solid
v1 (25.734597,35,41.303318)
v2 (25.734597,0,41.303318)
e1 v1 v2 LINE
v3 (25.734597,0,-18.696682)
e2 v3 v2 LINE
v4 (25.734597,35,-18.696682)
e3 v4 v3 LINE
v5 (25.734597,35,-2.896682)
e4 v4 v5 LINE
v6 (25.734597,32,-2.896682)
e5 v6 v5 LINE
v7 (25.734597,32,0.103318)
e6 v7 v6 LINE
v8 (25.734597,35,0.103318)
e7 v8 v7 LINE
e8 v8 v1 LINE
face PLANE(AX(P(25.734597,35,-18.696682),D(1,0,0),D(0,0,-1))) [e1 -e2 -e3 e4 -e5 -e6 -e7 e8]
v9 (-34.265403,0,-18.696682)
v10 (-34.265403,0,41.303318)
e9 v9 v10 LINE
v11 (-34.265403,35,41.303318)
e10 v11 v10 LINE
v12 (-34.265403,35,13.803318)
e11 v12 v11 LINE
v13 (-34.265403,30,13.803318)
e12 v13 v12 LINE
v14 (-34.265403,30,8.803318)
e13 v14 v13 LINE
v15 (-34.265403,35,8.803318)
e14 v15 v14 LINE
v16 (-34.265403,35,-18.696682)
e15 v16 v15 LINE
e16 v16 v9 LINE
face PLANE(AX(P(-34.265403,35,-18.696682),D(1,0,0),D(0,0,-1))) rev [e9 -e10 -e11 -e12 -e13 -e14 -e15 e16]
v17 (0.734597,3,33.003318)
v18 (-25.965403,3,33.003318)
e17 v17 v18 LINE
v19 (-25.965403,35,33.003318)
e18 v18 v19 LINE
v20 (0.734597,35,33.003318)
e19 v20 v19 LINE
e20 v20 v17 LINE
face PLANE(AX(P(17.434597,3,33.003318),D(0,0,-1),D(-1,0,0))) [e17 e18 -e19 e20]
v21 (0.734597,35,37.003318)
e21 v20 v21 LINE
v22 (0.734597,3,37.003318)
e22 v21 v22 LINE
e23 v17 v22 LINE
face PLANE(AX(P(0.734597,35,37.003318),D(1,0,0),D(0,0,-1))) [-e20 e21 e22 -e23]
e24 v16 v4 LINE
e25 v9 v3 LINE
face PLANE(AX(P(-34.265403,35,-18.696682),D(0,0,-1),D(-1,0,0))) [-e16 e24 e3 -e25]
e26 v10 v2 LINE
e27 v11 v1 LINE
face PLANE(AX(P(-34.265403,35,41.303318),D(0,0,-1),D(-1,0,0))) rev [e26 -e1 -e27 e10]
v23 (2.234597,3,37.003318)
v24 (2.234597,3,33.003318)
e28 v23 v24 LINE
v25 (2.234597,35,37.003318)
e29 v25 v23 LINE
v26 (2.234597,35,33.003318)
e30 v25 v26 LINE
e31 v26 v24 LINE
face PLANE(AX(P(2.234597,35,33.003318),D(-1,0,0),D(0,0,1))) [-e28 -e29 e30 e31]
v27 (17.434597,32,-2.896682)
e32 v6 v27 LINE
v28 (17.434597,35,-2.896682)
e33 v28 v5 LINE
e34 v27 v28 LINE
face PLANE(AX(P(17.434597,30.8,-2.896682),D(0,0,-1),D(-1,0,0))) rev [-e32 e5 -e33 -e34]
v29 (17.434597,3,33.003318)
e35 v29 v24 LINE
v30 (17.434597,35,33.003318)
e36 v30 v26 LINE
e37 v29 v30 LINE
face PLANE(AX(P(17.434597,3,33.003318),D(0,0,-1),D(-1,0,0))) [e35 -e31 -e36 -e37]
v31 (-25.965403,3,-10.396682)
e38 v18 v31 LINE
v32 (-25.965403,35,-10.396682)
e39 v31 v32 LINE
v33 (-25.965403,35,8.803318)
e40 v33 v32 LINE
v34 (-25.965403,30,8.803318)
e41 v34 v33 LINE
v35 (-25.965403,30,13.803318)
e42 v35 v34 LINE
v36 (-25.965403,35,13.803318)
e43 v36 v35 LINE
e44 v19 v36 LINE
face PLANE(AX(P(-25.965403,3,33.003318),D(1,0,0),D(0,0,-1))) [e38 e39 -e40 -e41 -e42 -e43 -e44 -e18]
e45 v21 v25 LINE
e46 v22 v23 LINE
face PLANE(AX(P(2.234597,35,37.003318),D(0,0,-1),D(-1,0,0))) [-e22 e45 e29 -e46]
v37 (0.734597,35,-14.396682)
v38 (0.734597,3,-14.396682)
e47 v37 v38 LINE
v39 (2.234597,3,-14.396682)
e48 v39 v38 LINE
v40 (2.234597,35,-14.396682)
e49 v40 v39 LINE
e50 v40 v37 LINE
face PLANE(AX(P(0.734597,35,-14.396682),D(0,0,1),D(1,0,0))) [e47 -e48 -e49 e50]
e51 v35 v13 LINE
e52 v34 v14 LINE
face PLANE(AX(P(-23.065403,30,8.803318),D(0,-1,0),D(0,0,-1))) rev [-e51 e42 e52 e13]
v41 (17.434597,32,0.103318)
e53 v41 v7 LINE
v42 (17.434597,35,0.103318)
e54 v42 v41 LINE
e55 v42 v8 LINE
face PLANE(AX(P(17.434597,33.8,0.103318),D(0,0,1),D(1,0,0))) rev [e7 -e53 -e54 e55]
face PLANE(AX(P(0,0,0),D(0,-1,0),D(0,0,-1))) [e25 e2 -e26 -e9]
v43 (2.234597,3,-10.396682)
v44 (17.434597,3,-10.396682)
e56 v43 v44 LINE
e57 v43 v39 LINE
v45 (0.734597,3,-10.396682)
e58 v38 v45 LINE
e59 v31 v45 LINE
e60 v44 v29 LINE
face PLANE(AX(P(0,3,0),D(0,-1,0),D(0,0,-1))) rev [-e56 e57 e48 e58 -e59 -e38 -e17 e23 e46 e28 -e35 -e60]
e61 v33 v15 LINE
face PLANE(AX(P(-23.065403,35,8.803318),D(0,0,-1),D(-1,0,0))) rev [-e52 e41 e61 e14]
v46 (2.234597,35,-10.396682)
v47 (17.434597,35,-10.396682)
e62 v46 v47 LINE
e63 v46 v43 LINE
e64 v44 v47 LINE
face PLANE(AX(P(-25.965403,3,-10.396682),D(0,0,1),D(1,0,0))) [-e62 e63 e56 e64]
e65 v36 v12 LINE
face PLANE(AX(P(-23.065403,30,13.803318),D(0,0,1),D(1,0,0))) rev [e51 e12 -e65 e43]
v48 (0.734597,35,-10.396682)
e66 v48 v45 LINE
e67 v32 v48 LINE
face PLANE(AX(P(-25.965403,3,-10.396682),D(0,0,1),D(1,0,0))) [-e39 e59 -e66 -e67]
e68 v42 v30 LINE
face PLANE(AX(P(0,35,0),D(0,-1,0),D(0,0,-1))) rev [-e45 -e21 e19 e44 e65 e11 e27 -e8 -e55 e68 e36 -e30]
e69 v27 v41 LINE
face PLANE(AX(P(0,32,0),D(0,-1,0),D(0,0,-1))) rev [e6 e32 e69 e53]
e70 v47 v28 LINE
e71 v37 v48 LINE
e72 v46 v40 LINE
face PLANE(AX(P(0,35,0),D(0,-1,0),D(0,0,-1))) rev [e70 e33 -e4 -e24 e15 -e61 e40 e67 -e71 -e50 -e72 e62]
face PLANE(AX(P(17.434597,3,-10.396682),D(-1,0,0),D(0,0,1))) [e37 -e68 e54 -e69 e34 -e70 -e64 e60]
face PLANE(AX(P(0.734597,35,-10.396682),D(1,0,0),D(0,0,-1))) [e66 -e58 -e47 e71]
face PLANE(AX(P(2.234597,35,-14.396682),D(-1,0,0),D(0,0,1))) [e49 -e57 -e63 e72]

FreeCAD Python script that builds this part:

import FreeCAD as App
import Part
import Sketcher
from FreeCAD import Vector


def add_polygon(sketch, points):
    """Adds a closed chain of lines whose ends are joined by coincident constraints."""
    first, n = sketch.GeometryCount, len(points)
    for a, b in zip(points, points[1:] + points[:1]):
        sketch.addGeometry(Part.LineSegment(App.Vector(*a, 0), App.Vector(*b, 0)), False)
    for i in range(n):
        sketch.addConstraint(Sketcher.Constraint("Coincident", first + i, 2, first + (i + 1) % n, 1))

doc = App.newDocument("Part")
params = doc.addObject("Spreadsheet::Sheet", "Params")
for row, (alias, value) in enumerate([
    ("sketch1_width", "60 mm"),
    ("pad1_length", "35 mm"),
    ("sketch2_width", "43.4 mm"),
    ("pocket1_length", "32 mm"),
    ("sketch3_height", "4 mm"),
    ("sketch3_width", "1.5 mm"),
    ("pocket2_length", "32 mm"),
    ("sketch4_width", "3.5 mm"),
    ("pocket3_length", "76 mm"),
    ("pad2_length", "8.3 mm"),
    ("pad3_length", "8.3 mm"),
    ("sketch7_width", "3 mm"),
    ("pocket4_length", "8.3 mm"),
    ("sketch8_height", "3 mm"),
    ("sketch8_width", "1.2 mm"),
    ("pocket5_length", "10 mm"),
    ("sketch9_height", "3 mm"),
    ("sketch9_width", "8.3 mm"),
    ("pad4_length", "1.2 mm"),
    ("sketch10_width", "5 mm"),
    ("pocket6_length", "11.2 mm"),
], start=1):
    params.set(f"A{row}", alias)
    params.set(f"B{row}", "=" + value)
    params.setAlias(f"B{row}", alias)

body = doc.addObject("PartDesign::Body", "Body")

# Sketch on XZ plane
sketch1 = body.newObject("Sketcher::SketchObject", "Sketch")
sketch1.AttachmentSupport = (doc.getObject("XZ_Plane"), [""])
sketch1.MapMode = "FlatFace"
add_polygon(sketch1, [(-34, -19), (-34, 41), (26, 41), (26, -19)])  # lines 0-3
sketch1.addConstraint(Sketcher.Constraint("Vertical", 0))
sketch1.addConstraint(Sketcher.Constraint("Horizontal", 1))
sketch1.addConstraint(Sketcher.Constraint("Vertical", 2))
sketch1.addConstraint(Sketcher.Constraint("Horizontal", 3))
sketch1.addConstraint(Sketcher.Constraint("Equal", 3, 0))
sketch1.addConstraint(Sketcher.Constraint("DistanceX", 1, 1, 1, 2, 60.0))
sketch1.addConstraint(Sketcher.Constraint("DistanceX", 0, 2, -1, 1, 34.265403))
sketch1.addConstraint(Sketcher.Constraint("DistanceY", -1, 1, 0, 2, 41.303318))
sketch1.setExpression("Constraints[9]", "Params.sketch1_width")
pad1 = body.newObject("PartDesign::Pad", "Pad")
pad1.Profile = sketch1
pad1.setExpression("Length", "Params.pad1_length")
pad1.Reversed = True

# Sketch on XZ plane
sketch2 = body.newObject("Sketcher::SketchObject", "Sketch001")
sketch2.AttachmentSupport = (doc.getObject("XZ_Plane"), [""])
sketch2.MapMode = "FlatFace"
sketch2.AttachmentOffset = App.Placement(Vector(0, 0, -35), App.Rotation())
add_polygon(sketch2, [(-26, -10), (-26, 33), (17, 33), (17, -10)])  # lines 0-3
sketch2.addConstraint(Sketcher.Constraint("Vertical", 0))
sketch2.addConstraint(Sketcher.Constraint("Horizontal", 1))
sketch2.addConstraint(Sketcher.Constraint("Vertical", 2))
sketch2.addConstraint(Sketcher.Constraint("Horizontal", 3))
sketch2.addConstraint(Sketcher.Constraint("Equal", 3, 0))
sketch2.addConstraint(Sketcher.Constraint("DistanceX", 1, 1, 1, 2, 43.4))
sketch2.addConstraint(Sketcher.Constraint("DistanceX", 0, 2, -1, 1, 25.965403))
sketch2.addConstraint(Sketcher.Constraint("DistanceY", -1, 1, 0, 2, 33.003318))
sketch2.setExpression("Constraints[9]", "Params.sketch2_width")
pocket1 = body.newObject("PartDesign::Pocket", "Pocket")
pocket1.Profile = sketch2
pocket1.setExpression("Length", "Params.pocket1_length")
pocket1.Reversed = True

# Sketch on XZ plane
sketch3 = body.newObject("Sketcher::SketchObject", "Sketch002")
sketch3.AttachmentSupport = (doc.getObject("XZ_Plane"), [""])
sketch3.MapMode = "FlatFace"
sketch3.AttachmentOffset = App.Placement(Vector(0, 0, -3), App.Rotation())
add_polygon(sketch3, [(0.7, -14.4), (0.7, -10.4), (2.2, -10.4), (2.2, -14.4)])  # lines 0-3
add_polygon(sketch3, [(0.7, 33), (0.7, 37), (2.2, 37), (2.2, 33)])  # lines 4-7
sketch3.addConstraint(Sketcher.Constraint("Vertical", 0))
sketch3.addConstraint(Sketcher.Constraint("Horizontal", 1))
sketch3.addConstraint(Sketcher.Constraint("Vertical", 2))
sketch3.addConstraint(Sketcher.Constraint("Horizontal", 3))
sketch3.addConstraint(Sketcher.Constraint("Vertical", 4))
sketch3.addConstraint(Sketcher.Constraint("Horizontal", 5))
sketch3.addConstraint(Sketcher.Constraint("Vertical", 6))
sketch3.addConstraint(Sketcher.Constraint("Horizontal", 7))
sketch3.addConstraint(Sketcher.Constraint("Vertical", 3, 2, 4, 2))
sketch3.addConstraint(Sketcher.Constraint("Vertical", 2, 2, 5, 2))
sketch3.addConstraint(Sketcher.Constraint("Equal", 2, 4))
sketch3.addConstraint(Sketcher.Constraint("DistanceY", 0, 1, 0, 2, 4.0))
sketch3.addConstraint(Sketcher.Constraint("DistanceX", 1, 1, 1, 2, 1.5))
sketch3.addConstraint(Sketcher.Constraint("DistanceY", 0, 2, 4, 2, 47.4))
sketch3.addConstraint(Sketcher.Constraint("DistanceX", -1, 1, 0, 2, 0.734597))
sketch3.addConstraint(Sketcher.Constraint("DistanceY", 0, 2, -1, 1, 10.396682))
sketch3.setExpression("Constraints[19]", "Params.sketch3_height")
sketch3.setExpression("Constraints[20]", "Params.sketch3_width")
pocket2 = body.newObject("PartDesign::Pocket", "Pocket001")
pocket2.Profile = sketch3
pocket2.setExpression("Length", "Params.pocket2_length")

# Sketch on YZ plane
sketch4 = body.newObject("Sketcher::SketchObject", "Sketch003")
sketch4.AttachmentSupport = (doc.getObject("YZ_Plane"), [""])
sketch4.MapMode = "FlatFace"
sketch4.AttachmentOffset = App.Placement(Vector(0, 0, -34.265403), App.Rotation())
add_polygon(sketch4, [(32.5, -7), (29, -7), (29, -3.5), (32.5, -3.5)])  # lines 0-3
sketch4.addConstraint(Sketcher.Constraint("Horizontal", 0))
sketch4.addConstraint(Sketcher.Constraint("Vertical", 1))
sketch4.addConstraint(Sketcher.Constraint("Horizontal", 2))
sketch4.addConstraint(Sketcher.Constraint("Vertical", 3))
sketch4.addConstraint(Sketcher.Constraint("Equal", 2, 1))
sketch4.addConstraint(Sketcher.Constraint("DistanceX", 0, 2, 0, 1, 3.5))
sketch4.addConstraint(Sketcher.Constraint("DistanceX", -1, 1, 0, 2, 29.0))
sketch4.addConstraint(Sketcher.Constraint("DistanceY", 0, 2, -1, 1, 6.996682))
sketch4.setExpression("Constraints[9]", "Params.sketch4_width")
pocket3 = body.newObject("PartDesign::Pocket", "Pocket002")
pocket3.Profile = sketch4
pocket3.setExpression("Length", "Params.pocket3_length")
pocket3.Reversed = True

# Sketch on YZ plane
sketch5 = body.newObject("Sketcher::SketchObject", "Sketch004")
sketch5.AttachmentSupport = (doc.getObject("YZ_Plane"), [""])
sketch5.MapMode = "FlatFace"
sketch5.AttachmentOffset = App.Placement(Vector(0, 0, 25.734597), App.Rotation())
add_polygon(sketch5, [(33.4, -7.4), (33.4, -2.8), (28.3, -2.8), (28.3, -7.4)])  # lines 0-3
sketch5.addConstraint(Sketcher.Constraint("Vertical", 0))
sketch5.addConstraint(Sketcher.Constraint("Horizontal", 1))
sketch5.addConstraint(Sketcher.Constraint("Vertical", 2))
sketch5.addConstraint(Sketcher.Constraint("Horizontal", 3))
sketch5.addConstraint(Sketcher.Constraint("DistanceX", 1, 2, 1, 1, 5.066961))
sketch5.addConstraint(Sketcher.Constraint("DistanceY", 0, 1, 0, 2, 4.595591))
sketch5.addConstraint(Sketcher.Constraint("DistanceY", 0, 2, -1, 1, 2.785502))
sketch5.addConstraint(Sketcher.Constraint("DistanceX", -1, 1, 1, 2, 28.3414))
pad2 = body.newObject("PartDesign::Pad", "Pad001")
pad2.Profile = sketch5
pad2.setExpression("Length", "Params.pad2_length")
pad2.Reversed = True

# Sketch on YZ plane
sketch6 = body.newObject("Sketcher::SketchObject", "Sketch005")
sketch6.AttachmentSupport = (doc.getObject("YZ_Plane"), [""])
sketch6.MapMode = "FlatFace"
sketch6.AttachmentOffset = App.Placement(Vector(0, 0, -34.265403), App.Rotation())
add_polygon(sketch6, [(34, -3), (34, -8), (28, -8), (28, -3)])  # lines 0-3
sketch6.addConstraint(Sketcher.Constraint("Vertical", 0))
sketch6.addConstraint(Sketcher.Constraint("Horizontal", 1))
sketch6.addConstraint(Sketcher.Constraint("Vertical", 2))
sketch6.addConstraint(Sketcher.Constraint("Horizontal", 3))
sketch6.addConstraint(Sketcher.Constraint("DistanceX", 1, 2, 1, 1, 5.100097))
sketch6.addConstraint(Sketcher.Constraint("DistanceY", 0, 2, 0, 1, 5.076595))
sketch6.addConstraint(Sketcher.Constraint("DistanceX", -1, 1, 0, 2, 33.539678))
sketch6.addConstraint(Sketcher.Constraint("DistanceY", 2, 2, -1, 1, 3.311731))
pad3 = body.newObject("PartDesign::Pad", "Pad002")
pad3.Profile = sketch6
pad3.setExpression("Length", "Params.pad3_length")

# Sketch on YZ plane
sketch7 = body.newObject("Sketcher::SketchObject", "Sketch006")
sketch7.AttachmentSupport = (doc.getObject("YZ_Plane"), [""])
sketch7.MapMode = "FlatFace"
sketch7.AttachmentOffset = App.Placement(Vector(0, 0, 25.734597), App.Rotation())
add_polygon(sketch7, [(33.8, 0.1), (30.8, 0.1), (30.8, -2.9), (33.8, -2.9)])  # lines 0-3
sketch7.addConstraint(Sketcher.Constraint("Horizontal", 0))
sketch7.addConstraint(Sketcher.Constraint("Vertical", 1))
sketch7.addConstraint(Sketcher.Constraint("Horizontal", 2))
sketch7.addConstraint(Sketcher.Constraint("Vertical", 3))
sketch7.addConstraint(Sketcher.Constraint("Equal", 2, 1))
sketch7.addConstraint(Sketcher.Constraint("DistanceX", 0, 2, 0, 1, 3.0))
sketch7.addConstraint(Sketcher.Constraint("DistanceX", -1, 1, 0, 2, 30.8))
sketch7.addConstraint(Sketcher.Constraint("DistanceY", -1, 1, 0, 2, 0.103318))
sketch7.setExpression("Constraints[9]", "Params.sketch7_width")
pocket4 = body.newObject("PartDesign::Pocket", "Pocket003")
pocket4.Profile = sketch7
pocket4.setExpression("Length", "Params.pocket4_length")

# Sketch on YZ plane
sketch8 = body.newObject("Sketcher::SketchObject", "Sketch007")
sketch8.AttachmentSupport = (doc.getObject("YZ_Plane"), [""])
sketch8.MapMode = "FlatFace"
sketch8.AttachmentOffset = App.Placement(Vector(0, 0, 25.734597), App.Rotation())
add_polygon(sketch8, [(35, 0.1), (33.8, 0.1), (33.8, -2.9), (35, -2.9)])  # lines 0-3
sketch8.addConstraint(Sketcher.Constraint("Horizontal", 0))
sketch8.addConstraint(Sketcher.Constraint("Vertical", 1))
sketch8.addConstraint(Sketcher.Constraint("Horizontal", 2))
sketch8.addConstraint(Sketcher.Constraint("Vertical", 3))
sketch8.addConstraint(Sketcher.Constraint("DistanceY", 1, 2, 1, 1, 3.0))
sketch8.addConstraint(Sketcher.Constraint("DistanceX", 0, 2, 0, 1, 1.2))
sketch8.addConstraint(Sketcher.Constraint("DistanceX", -1, 1, 2, 2, 35.0))
sketch8.addConstraint(Sketcher.Constraint("DistanceY", -1, 1, 0, 2, 0.103318))
sketch8.setExpression("Constraints[8]", "Params.sketch8_height")
sketch8.setExpression("Constraints[9]", "Params.sketch8_width")
pocket5 = body.newObject("PartDesign::Pocket", "Pocket004")
pocket5.Profile = sketch8
pocket5.setExpression("Length", "Params.pocket5_length")

# Sketch on XZ plane
sketch9 = body.newObject("Sketcher::SketchObject", "Sketch008")
sketch9.AttachmentSupport = (doc.getObject("XZ_Plane"), [""])
sketch9.MapMode = "FlatFace"
sketch9.AttachmentOffset = App.Placement(Vector(0, 0, -30.8), App.Rotation())
add_polygon(sketch9, [(17.4, -2.9), (17.4, 0.1), (25.7, 0.1), (25.7, -2.9)])  # lines 0-3
sketch9.addConstraint(Sketcher.Constraint("Vertical", 0))
sketch9.addConstraint(Sketcher.Constraint("Horizontal", 1))
sketch9.addConstraint(Sketcher.Constraint("Vertical", 2))
sketch9.addConstraint(Sketcher.Constraint("Horizontal", 3))
sketch9.addConstraint(Sketcher.Constraint("DistanceY", 0, 1, 0, 2, 3.0))
sketch9.addConstraint(Sketcher.Constraint("DistanceX", 1, 1, 1, 2, 8.3))
sketch9.addConstraint(Sketcher.Constraint("DistanceX", -1, 1, 0, 2, 17.434597))
sketch9.addConstraint(Sketcher.Constraint("DistanceY", -1, 1, 0, 2, 0.103318))
sketch9.setExpression("Constraints[8]", "Params.sketch9_height")
sketch9.setExpression("Constraints[9]", "Params.sketch9_width")
pad4 = body.newObject("PartDesign::Pad", "Pad003")
pad4.Profile = sketch9
pad4.setExpression("Length", "Params.pad4_length")
pad4.Reversed = True

# Sketch on YZ plane
sketch10 = body.newObject("Sketcher::SketchObject", "Sketch009")
sketch10.AttachmentSupport = (doc.getObject("YZ_Plane"), [""])
sketch10.MapMode = "FlatFace"
sketch10.AttachmentOffset = App.Placement(Vector(0, 0, -34.265403), App.Rotation())
add_polygon(sketch10, [(35, 9), (30, 9), (30, 14), (35, 14)])  # lines 0-3
sketch10.addConstraint(Sketcher.Constraint("Horizontal", 0))
sketch10.addConstraint(Sketcher.Constraint("Vertical", 1))
sketch10.addConstraint(Sketcher.Constraint("Horizontal", 2))
sketch10.addConstraint(Sketcher.Constraint("Vertical", 3))
sketch10.addConstraint(Sketcher.Constraint("Equal", 2, 1))
sketch10.addConstraint(Sketcher.Constraint("DistanceX", 0, 2, 0, 1, 5.0))
sketch10.addConstraint(Sketcher.Constraint("DistanceX", -1, 1, 0, 2, 30.0))
sketch10.addConstraint(Sketcher.Constraint("DistanceY", -1, 1, 0, 2, 8.803318))
sketch10.setExpression("Constraints[9]", "Params.sketch10_width")
pocket6 = body.newObject("PartDesign::Pocket", "Pocket005")
pocket6.Profile = sketch10
pocket6.setExpression("Length", "Params.pocket6_length")
pocket6.Reversed = True

doc.recompute()
